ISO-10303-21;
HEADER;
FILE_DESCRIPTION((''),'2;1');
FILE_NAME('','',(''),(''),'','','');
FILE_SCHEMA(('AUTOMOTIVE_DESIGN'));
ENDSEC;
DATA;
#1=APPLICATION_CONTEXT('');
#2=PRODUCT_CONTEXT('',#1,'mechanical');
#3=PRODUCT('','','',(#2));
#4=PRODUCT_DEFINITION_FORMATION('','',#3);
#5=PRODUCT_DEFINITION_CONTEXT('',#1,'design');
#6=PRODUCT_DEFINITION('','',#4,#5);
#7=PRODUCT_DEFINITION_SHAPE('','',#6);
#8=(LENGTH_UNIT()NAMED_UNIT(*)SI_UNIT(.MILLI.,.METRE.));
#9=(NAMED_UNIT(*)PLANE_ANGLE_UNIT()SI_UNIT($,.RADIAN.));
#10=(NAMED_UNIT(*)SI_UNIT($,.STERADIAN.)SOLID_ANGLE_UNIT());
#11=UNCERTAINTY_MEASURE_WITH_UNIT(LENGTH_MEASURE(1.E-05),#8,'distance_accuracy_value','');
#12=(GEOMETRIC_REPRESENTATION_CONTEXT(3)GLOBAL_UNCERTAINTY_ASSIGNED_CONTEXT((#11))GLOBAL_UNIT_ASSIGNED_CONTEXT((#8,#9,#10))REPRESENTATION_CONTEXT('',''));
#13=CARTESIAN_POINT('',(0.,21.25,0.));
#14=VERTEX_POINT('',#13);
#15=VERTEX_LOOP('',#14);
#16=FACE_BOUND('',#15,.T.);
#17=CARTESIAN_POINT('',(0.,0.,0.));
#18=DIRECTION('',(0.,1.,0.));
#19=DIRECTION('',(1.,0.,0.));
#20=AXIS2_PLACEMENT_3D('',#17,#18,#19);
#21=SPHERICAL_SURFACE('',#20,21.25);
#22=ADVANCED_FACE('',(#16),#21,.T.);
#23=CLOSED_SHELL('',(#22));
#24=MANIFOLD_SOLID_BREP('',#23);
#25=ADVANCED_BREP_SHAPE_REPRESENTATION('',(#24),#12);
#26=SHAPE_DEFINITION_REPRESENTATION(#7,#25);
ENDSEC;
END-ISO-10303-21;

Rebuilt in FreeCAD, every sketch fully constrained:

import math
import FreeCAD as App
import Part
import Sketcher
from FreeCAD import Vector

doc = App.newDocument("Part")
body = doc.addObject("PartDesign::Body", "Body")

# Sketch on XY plane
sketch1 = doc.addObject("Sketcher::SketchObject", "Sketch")
body.addObject(sketch1)
sketch1.AttachmentSupport = (doc.XY_Plane, [""])
sketch1.MapMode = "FlatFace"
sketch1.addGeometry([
    Part.LineSegment(Vector(0, 21, 0), Vector(0, -21, 0)),
    Part.ArcOfCircle(Part.Circle(Vector(0, 0, 0), Vector(0, 0, 1), 21), math.radians(-90), math.radians(90)),
], False)
sketch1.addConstraint([
    Sketcher.Constraint("Coincident", 0, 1, 1, 2),
    Sketcher.Constraint("Coincident", 1, 1, 0, 2),
    Sketcher.Constraint("Vertical", 0),
    Sketcher.Constraint("Coincident", 1, 3, -1, 1),
    Sketcher.Constraint("PointOnObject", 0, 1, -2),
    Sketcher.Constraint("Radius", 1, 21.25),
])
revolution = doc.addObject("PartDesign::Revolution", "Revolution")
body.addObject(revolution)
revolution.Profile = sketch1
revolution.ReferenceAxis = (sketch1, ["V_Axis"])
revolution.Angle = 360

doc.recompute()
